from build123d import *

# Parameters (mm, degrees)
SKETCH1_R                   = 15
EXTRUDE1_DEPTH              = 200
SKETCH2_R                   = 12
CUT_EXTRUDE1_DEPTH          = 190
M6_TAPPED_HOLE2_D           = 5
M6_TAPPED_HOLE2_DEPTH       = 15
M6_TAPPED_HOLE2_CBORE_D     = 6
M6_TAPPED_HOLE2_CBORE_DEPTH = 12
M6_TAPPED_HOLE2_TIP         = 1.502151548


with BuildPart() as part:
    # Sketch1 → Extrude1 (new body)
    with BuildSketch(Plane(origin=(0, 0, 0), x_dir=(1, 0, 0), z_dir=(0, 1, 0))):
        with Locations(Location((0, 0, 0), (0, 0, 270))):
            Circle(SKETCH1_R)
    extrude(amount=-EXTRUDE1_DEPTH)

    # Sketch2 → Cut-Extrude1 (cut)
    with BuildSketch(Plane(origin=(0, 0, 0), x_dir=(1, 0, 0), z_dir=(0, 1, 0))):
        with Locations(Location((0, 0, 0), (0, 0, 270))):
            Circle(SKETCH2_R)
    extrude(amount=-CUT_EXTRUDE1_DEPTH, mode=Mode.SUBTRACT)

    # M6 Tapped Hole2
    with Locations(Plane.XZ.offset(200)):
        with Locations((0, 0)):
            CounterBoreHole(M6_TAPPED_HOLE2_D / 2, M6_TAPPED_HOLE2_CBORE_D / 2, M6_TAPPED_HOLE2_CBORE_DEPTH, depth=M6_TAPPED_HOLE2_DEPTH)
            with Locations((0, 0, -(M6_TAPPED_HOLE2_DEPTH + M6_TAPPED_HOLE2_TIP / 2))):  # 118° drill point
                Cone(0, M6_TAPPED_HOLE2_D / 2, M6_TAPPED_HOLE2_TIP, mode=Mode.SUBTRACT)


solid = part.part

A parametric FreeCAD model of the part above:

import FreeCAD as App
import Part
import Sketcher
Q = App.Units.Quantity

doc = App.newDocument("Part")
body = doc.addObject("PartDesign::Body", "Body")

sketch1 = body.newObject("Sketcher::SketchObject", "Sketch")
sketch1.AttachmentSupport = (doc.getObject("XZ_Plane"), [""])
sketch1.MapMode = "FlatFace"
sketch1.addGeometry(Part.Circle(App.Vector(0, 0, 0), App.Vector(0, 0, 1), 15), False)
sketch1.addConstraint(Sketcher.Constraint("Coincident", 0, 3, -1, 1))
sketch1.addConstraint(Sketcher.Constraint("Diameter", 0, Q("30 mm")))
pad1 = body.newObject("PartDesign::Pad", "Pad")
pad1.Profile = sketch1
pad1.Length = 200

sketch2 = body.newObject("Sketcher::SketchObject", "Sketch001")
sketch2.AttachmentSupport = (doc.getObject("XZ_Plane"), [""])
sketch2.MapMode = "FlatFace"
sketch2.addGeometry(Part.Circle(App.Vector(0, 0, 0), App.Vector(0, 0, 1), 12), False)
sketch2.addConstraint(Sketcher.Constraint("Coincident", 0, 3, -1, 1))
sketch2.addConstraint(Sketcher.Constraint("Diameter", 0, Q("24 mm")))
pocket1 = body.newObject("PartDesign::Pocket", "Pocket")
pocket1.Profile = sketch2
pocket1.Length = 190
pocket1.Reversed = True

sketch3 = body.newObject("Sketcher::SketchObject", "Sketch002")
sketch3.AttachmentSupport = (doc.getObject("XZ_Plane"), [""])
sketch3.MapMode = "FlatFace"
sketch3.AttachmentOffset = App.Placement(App.Vector(0, 0, 200), App.Rotation())
sketch3.addGeometry(Part.Circle(App.Vector(0, 0, 0), App.Vector(0, 0, 1), 2.5), False)
sketch3.addConstraint(Sketcher.Constraint("Coincident", 0, 3, -1, 1))
sketch3.addConstraint(Sketcher.Constraint("Diameter", 0, Q("5 mm")))
doc.recompute()
hole = body.newObject("PartDesign::Hole", "Hole")
hole.Profile = sketch3
hole.ThreadType = "None"
hole.Diameter = 5
hole.DepthType = "Dimension"
hole.Depth = 15
hole.DrillPoint = "Angled"
hole.DrillPointAngle = 118
hole.HoleCutType = "Counterbore"
hole.HoleCutDiameter = 6
hole.HoleCutDepth = 12

doc.recompute()
